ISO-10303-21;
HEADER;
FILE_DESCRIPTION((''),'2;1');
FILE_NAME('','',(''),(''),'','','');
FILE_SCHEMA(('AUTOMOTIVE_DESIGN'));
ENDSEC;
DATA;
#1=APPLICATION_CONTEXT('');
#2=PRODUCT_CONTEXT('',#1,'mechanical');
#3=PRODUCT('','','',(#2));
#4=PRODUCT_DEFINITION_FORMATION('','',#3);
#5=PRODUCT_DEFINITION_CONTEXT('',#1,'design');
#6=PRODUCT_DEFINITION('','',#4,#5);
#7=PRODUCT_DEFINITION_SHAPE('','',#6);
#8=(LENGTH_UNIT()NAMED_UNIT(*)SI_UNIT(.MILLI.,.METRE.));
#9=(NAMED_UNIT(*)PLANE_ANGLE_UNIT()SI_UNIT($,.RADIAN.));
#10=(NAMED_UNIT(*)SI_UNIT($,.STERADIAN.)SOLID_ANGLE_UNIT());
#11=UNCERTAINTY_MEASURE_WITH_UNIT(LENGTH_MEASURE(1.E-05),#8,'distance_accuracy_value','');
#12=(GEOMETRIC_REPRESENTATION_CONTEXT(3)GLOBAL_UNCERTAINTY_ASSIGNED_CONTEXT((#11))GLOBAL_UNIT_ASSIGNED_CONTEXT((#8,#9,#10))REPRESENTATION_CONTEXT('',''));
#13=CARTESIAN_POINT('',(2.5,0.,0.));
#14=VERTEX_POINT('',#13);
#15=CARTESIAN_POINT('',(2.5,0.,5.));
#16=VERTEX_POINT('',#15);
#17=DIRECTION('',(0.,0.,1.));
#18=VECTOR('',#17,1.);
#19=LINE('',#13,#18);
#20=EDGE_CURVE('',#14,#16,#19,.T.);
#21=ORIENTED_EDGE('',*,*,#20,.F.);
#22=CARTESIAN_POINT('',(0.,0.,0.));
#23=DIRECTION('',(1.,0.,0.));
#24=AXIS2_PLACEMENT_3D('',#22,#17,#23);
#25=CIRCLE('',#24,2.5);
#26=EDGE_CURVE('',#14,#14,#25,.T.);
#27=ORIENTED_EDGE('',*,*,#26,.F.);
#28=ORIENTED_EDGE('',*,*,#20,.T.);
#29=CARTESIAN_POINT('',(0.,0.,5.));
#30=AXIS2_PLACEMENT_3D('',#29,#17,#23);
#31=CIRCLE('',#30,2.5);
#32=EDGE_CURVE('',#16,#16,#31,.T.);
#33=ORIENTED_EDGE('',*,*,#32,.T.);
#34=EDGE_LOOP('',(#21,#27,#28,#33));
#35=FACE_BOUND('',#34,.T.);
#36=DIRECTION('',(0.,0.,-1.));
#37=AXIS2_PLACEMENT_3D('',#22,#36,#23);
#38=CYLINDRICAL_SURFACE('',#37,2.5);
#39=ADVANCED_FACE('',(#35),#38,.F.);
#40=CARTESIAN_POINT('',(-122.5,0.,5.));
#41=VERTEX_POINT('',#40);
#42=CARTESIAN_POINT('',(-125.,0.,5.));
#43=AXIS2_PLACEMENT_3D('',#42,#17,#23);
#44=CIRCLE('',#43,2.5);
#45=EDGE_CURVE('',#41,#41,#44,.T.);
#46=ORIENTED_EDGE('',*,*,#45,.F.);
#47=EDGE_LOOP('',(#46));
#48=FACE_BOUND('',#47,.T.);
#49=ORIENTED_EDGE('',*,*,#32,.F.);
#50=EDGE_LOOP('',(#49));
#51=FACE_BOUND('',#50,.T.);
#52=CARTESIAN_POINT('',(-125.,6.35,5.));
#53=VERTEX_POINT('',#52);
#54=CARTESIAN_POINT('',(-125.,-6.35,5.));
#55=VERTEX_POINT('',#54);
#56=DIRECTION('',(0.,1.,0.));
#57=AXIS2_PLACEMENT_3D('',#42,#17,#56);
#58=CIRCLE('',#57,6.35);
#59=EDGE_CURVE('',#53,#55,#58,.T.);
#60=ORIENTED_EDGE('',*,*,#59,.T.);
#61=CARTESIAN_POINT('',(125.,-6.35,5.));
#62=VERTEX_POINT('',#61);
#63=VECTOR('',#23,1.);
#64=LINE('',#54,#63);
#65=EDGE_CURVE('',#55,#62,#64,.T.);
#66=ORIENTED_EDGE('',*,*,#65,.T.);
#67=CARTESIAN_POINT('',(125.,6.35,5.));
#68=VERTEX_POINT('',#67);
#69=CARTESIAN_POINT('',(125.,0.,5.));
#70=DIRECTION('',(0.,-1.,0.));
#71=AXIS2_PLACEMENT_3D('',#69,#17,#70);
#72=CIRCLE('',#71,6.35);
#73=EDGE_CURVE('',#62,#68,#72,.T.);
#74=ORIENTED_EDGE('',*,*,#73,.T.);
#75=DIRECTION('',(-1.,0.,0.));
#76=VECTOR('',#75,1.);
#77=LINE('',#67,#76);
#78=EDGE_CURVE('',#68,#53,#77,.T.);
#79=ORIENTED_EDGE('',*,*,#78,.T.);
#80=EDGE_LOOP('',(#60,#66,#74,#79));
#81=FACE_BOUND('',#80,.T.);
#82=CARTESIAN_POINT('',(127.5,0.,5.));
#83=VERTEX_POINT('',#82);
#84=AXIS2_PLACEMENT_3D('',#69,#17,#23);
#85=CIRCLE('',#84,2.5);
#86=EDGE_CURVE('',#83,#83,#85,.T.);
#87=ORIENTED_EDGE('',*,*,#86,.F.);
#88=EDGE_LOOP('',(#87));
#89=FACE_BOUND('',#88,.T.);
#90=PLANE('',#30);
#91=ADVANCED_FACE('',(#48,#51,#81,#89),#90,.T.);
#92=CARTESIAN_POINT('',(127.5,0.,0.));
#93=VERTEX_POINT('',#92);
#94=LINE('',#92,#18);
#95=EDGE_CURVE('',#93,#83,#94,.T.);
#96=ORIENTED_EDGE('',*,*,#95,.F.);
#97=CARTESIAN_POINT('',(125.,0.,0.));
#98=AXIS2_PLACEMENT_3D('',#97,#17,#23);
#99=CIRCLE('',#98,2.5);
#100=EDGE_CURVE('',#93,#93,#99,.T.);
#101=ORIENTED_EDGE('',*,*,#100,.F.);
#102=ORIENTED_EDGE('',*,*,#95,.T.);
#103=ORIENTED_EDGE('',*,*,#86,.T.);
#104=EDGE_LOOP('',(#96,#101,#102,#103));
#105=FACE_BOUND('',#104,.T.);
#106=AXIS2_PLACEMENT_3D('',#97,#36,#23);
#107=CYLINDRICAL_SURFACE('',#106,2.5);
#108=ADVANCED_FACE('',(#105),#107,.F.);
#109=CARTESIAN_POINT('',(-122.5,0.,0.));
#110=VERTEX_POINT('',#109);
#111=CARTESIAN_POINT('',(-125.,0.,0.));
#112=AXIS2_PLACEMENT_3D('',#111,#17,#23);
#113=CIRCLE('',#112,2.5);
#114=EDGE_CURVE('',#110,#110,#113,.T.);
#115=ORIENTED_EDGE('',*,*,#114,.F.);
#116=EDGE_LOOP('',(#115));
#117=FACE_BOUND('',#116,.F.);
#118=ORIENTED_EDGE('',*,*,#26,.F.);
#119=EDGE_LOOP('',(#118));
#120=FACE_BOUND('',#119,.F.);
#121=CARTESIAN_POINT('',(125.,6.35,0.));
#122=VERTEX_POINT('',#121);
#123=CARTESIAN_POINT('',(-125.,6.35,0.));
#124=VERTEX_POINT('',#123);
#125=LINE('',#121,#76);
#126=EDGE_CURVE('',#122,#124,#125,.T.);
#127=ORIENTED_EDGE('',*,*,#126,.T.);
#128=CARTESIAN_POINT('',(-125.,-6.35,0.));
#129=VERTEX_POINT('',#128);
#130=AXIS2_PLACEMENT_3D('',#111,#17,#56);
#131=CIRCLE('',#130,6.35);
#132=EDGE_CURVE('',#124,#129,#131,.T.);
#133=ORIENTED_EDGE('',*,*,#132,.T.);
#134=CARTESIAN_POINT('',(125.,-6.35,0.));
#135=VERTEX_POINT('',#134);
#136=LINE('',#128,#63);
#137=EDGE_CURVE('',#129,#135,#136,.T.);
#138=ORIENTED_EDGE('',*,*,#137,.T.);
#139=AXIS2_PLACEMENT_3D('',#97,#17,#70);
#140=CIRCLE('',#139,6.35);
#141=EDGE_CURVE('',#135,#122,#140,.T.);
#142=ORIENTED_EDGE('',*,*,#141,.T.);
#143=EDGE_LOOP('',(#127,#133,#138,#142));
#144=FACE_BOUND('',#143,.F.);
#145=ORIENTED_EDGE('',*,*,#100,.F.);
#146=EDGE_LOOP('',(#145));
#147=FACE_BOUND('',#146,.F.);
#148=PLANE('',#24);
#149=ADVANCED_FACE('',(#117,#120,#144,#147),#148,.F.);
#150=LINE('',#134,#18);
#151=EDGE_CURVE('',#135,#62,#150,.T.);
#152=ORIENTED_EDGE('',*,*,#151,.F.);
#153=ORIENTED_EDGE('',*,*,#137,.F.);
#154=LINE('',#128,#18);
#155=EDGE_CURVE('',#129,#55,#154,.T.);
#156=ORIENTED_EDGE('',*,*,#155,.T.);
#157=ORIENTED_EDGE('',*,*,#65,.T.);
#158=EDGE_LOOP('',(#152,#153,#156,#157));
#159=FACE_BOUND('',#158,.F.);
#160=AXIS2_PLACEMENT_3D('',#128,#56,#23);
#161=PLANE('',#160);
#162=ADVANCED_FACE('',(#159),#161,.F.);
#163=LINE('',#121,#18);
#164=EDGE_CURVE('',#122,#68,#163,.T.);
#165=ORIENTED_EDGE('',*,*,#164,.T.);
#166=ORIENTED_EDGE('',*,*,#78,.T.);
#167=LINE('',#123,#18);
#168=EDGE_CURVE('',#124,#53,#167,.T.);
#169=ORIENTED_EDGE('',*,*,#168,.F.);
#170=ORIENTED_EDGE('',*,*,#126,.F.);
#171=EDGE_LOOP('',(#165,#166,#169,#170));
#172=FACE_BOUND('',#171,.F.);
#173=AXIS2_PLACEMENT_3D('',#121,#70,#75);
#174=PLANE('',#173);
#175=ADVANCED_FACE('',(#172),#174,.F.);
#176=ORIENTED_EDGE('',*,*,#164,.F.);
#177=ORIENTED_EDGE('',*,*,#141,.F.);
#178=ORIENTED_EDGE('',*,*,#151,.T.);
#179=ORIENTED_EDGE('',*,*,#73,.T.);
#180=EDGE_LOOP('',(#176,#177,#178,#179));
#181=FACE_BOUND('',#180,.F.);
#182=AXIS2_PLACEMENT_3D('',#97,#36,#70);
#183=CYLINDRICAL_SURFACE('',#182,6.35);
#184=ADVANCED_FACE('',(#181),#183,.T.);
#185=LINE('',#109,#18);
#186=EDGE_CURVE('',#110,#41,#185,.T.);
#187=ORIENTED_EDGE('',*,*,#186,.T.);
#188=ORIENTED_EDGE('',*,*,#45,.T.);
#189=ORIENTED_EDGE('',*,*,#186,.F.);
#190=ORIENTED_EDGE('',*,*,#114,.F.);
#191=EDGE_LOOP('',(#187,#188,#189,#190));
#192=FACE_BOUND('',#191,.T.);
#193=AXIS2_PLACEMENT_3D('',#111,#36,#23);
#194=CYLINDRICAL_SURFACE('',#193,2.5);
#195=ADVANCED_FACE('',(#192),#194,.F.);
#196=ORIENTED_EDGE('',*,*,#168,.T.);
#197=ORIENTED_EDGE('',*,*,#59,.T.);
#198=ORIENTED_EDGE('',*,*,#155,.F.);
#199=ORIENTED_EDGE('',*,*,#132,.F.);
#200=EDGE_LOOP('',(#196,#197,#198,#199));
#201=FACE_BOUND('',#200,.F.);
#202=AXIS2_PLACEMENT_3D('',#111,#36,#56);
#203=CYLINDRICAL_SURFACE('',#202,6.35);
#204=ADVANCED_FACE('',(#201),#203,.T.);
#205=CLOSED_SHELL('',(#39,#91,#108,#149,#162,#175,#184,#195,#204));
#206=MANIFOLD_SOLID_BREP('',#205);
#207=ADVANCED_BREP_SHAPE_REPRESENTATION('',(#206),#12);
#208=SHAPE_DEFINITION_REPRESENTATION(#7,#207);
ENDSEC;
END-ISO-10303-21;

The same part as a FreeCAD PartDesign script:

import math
import FreeCAD as App
import Part
import Sketcher

V = App.Vector

doc = App.newDocument("Part")
body = doc.addObject("PartDesign::Body", "Body")

sketch1 = body.newObject("Sketcher::SketchObject", "Sketch")
sketch1.AttachmentSupport = (doc.getObject("XY_Plane"), [""])
sketch1.MapMode = "FlatFace"
sketch1.addGeometry([
    Part.LineSegment(V(-125, -6.3, 0), V(125, -6.3, 0)),
    Part.ArcOfCircle(Part.Circle(V(125, 0, 0), V(0, 0, 1), 6.3), math.radians(-90), math.radians(90)),
    Part.LineSegment(V(125, 6.3, 0), V(-125, 6.3, 0)),
    Part.ArcOfCircle(Part.Circle(V(-125, 0, 0), V(0, 0, 1), 6.3), math.radians(90), math.radians(270)),
    Part.Circle(V(-125, 0, 0), V(0, 0, 1), 2.5),
    Part.Circle(V(0, 0, 0), V(0, 0, 1), 2.5),
    Part.Circle(V(125, 0, 0), V(0, 0, 1), 2.5),
], False)
sketch1.addConstraint([
    Sketcher.Constraint("Tangent", 0, 2, 1, 1),
    Sketcher.Constraint("Tangent", 1, 2, 2, 1),
    Sketcher.Constraint("Tangent", 2, 2, 3, 1),
    Sketcher.Constraint("Tangent", 3, 2, 0, 1),
    Sketcher.Constraint("Horizontal", 0),
    Sketcher.Constraint("Horizontal", 2),
    Sketcher.Constraint("Coincident", 5, 3, -1, 1),
    Sketcher.Constraint("Coincident", 4, 3, 3, 3),
    Sketcher.Constraint("Coincident", 6, 3, 1, 3),
    Sketcher.Constraint("Equal", 4, 5),
    Sketcher.Constraint("Equal", 5, 6),
    Sketcher.Constraint("Symmetric", 1, 3, 3, 3, -1, 1),
    Sketcher.Constraint("Diameter", 4, 5.0),
    Sketcher.Constraint("DistanceX", 0, 1, 0, 2, 250.0),
    Sketcher.Constraint("Radius", 1, 6.35),
])
pad1 = body.newObject("PartDesign::Pad", "Pad")
pad1.Profile = sketch1
pad1.Length = 5

doc.recompute()
